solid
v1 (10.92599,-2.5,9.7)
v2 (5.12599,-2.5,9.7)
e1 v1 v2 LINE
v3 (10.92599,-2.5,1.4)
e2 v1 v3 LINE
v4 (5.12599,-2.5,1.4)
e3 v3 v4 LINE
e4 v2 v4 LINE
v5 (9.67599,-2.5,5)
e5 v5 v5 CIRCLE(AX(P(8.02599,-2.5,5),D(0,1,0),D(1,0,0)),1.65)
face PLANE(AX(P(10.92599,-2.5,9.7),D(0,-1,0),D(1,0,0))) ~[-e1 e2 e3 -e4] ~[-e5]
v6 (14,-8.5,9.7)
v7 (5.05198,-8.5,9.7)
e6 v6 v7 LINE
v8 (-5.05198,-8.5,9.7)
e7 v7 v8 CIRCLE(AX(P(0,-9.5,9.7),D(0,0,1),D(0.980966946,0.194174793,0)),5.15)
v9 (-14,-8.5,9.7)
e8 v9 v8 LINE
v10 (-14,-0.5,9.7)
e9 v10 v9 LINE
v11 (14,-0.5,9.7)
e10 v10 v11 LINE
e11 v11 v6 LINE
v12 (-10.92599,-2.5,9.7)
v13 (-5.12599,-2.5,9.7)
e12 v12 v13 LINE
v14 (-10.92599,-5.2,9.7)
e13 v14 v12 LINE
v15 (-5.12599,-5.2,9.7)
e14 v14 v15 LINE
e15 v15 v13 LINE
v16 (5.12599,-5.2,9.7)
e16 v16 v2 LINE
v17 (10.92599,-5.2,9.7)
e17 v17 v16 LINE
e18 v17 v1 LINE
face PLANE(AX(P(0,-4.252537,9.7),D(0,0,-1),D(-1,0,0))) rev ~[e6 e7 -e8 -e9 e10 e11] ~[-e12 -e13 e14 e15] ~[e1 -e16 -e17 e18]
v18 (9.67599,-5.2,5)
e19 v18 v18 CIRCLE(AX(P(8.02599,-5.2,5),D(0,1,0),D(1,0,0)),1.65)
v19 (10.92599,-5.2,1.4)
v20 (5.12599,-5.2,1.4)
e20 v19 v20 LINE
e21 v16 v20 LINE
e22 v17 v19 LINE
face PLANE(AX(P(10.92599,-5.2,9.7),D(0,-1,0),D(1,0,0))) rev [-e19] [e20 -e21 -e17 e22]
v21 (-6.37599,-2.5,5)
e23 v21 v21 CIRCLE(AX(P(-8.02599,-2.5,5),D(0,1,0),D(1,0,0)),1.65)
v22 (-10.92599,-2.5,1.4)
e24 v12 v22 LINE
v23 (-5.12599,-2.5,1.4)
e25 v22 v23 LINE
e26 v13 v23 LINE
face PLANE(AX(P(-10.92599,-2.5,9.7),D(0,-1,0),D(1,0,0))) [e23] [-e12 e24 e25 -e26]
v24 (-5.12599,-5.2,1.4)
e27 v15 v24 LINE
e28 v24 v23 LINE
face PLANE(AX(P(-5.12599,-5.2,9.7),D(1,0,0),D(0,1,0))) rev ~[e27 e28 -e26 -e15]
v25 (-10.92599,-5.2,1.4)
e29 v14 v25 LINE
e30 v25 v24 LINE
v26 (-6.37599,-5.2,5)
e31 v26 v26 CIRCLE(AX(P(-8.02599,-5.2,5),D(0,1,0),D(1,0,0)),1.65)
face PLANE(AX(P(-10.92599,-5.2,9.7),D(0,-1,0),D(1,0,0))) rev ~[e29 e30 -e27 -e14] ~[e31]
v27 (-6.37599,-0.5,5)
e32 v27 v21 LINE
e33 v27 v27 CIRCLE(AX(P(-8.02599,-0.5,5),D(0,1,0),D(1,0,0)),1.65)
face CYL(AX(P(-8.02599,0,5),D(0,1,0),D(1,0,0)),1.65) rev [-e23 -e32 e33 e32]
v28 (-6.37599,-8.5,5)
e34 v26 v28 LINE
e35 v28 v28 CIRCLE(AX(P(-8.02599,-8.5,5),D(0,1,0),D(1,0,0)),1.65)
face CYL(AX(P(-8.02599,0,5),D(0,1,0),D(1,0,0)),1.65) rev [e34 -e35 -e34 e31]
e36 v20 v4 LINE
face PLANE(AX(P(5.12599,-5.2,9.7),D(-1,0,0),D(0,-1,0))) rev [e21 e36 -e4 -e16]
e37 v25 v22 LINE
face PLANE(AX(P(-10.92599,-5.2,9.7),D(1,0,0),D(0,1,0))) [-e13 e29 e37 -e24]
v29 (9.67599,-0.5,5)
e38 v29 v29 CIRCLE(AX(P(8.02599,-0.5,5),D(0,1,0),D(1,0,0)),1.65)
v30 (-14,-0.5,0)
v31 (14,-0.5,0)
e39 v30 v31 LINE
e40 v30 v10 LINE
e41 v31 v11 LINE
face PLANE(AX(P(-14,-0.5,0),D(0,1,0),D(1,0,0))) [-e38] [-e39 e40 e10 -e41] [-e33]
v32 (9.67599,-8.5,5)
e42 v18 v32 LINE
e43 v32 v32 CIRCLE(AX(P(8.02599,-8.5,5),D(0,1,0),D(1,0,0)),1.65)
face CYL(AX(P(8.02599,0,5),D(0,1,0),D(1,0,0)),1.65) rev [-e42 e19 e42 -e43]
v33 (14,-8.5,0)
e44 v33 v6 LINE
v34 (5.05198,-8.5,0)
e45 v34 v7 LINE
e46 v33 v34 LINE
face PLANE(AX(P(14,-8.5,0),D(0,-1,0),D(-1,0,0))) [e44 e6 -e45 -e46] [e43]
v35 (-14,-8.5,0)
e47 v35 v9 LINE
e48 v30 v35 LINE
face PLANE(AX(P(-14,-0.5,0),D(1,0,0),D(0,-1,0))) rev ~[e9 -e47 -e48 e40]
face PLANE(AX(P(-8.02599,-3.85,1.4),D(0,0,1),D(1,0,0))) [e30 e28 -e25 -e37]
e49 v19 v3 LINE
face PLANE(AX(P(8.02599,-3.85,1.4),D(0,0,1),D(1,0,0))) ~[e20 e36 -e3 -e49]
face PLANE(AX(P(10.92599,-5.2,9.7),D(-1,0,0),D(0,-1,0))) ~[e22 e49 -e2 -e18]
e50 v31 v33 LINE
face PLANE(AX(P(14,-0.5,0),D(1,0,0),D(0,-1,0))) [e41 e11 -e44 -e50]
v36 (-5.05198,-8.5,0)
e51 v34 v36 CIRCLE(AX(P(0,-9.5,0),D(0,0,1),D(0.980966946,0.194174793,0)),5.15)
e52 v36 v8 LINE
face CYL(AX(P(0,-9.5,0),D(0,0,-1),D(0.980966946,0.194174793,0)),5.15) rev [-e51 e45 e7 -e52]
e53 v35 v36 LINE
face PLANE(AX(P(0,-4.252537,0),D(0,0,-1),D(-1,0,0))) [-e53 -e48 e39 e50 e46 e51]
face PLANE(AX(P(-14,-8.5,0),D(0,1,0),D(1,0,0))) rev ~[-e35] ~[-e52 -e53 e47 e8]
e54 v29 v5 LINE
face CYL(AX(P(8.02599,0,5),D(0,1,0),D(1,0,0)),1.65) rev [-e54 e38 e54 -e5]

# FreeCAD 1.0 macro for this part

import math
import FreeCAD as App
import Part
import Sketcher

V = App.Vector

doc = App.newDocument("Part")
params = doc.addObject("Spreadsheet::Sheet", "Params")
for row, (alias, value) in enumerate([
    ("sketch1_width", "28 mm"),
    ("sketch1_height", "8 mm"),
    ("sketch1_radius", "5.15 mm"),
    ("sketch1_height2", "1 mm"),
    ("pad1_length", "9.7 mm"),
    ("sketch2_diameter", "3.3 mm"),
    ("sketch3_width", "5.8 mm"),
    ("sketch3_height", "2.7 mm"),
    ("pocket2_length", "8.3 mm"),
], start=1):
    params.set(f"A{row}", alias)
    params.set(f"B{row}", "=" + value)
    params.setAlias(f"B{row}", alias)

body = doc.addObject("PartDesign::Body", "Body")

sketch1 = doc.addObject("Sketcher::SketchObject", "Sketch")
body.addObject(sketch1)
sketch1.AttachmentSupport = (doc.XY_Plane, [""])
sketch1.MapMode = "FlatFace"
sketch1.addGeometry([
    Part.ArcOfCircle(Part.Circle(V(0, -10, 0), V(0, 0, 1), 5), math.radians(11), math.radians(169)),
    Part.LineSegment(V(5, -8, 0), V(14, -8, 0)),
    Part.LineSegment(V(14, -8, 0), V(14, 0, 0)),
    Part.LineSegment(V(14, 0, 0), V(-14, 0, 0)),
    Part.LineSegment(V(-14, 0, 0), V(-14, -8, 0)),
    Part.LineSegment(V(-14, -8, 0), V(-5, -8, 0)),
], False)
sketch1.addConstraint([
    Sketcher.Constraint("Coincident", 0, 1, 1, 1),
    Sketcher.Constraint("Coincident", 1, 2, 2, 1),
    Sketcher.Constraint("Coincident", 2, 2, 3, 1),
    Sketcher.Constraint("Coincident", 3, 2, 4, 1),
    Sketcher.Constraint("Coincident", 4, 2, 5, 1),
    Sketcher.Constraint("Coincident", 5, 2, 0, 2),
    Sketcher.Constraint("Horizontal", 1),
    Sketcher.Constraint("Vertical", 2),
    Sketcher.Constraint("Horizontal", 3),
    Sketcher.Constraint("Vertical", 4),
    Sketcher.Constraint("Horizontal", 5),
    Sketcher.Constraint("Symmetric", 1, 2, 4, 2, -2),
    Sketcher.Constraint("PointOnObject", 0, 3, -2),
    Sketcher.Constraint("DistanceX", 3, 2, 3, 1, 28.0),
    Sketcher.Constraint("DistanceY", 2, 1, 2, 2, 8.0),
    Sketcher.Constraint("Radius", 0, 5.15),
    Sketcher.Constraint("DistanceY", 0, 3, 0, 1, 1.0),
    Sketcher.Constraint("DistanceY", 0, 3, -1, 1, 9.5),
])
sketch1.setExpression("Constraints[13]", "Params.sketch1_width")
sketch1.setExpression("Constraints[14]", "Params.sketch1_height")
sketch1.setExpression("Constraints[15]", "Params.sketch1_radius")
sketch1.setExpression("Constraints[16]", "Params.sketch1_height2")
pad1 = doc.addObject("PartDesign::Pad", "Pad")
body.addObject(pad1)
pad1.Profile = sketch1
pad1.setExpression("Length", "Params.pad1_length")

sketch2 = doc.addObject("Sketcher::SketchObject", "Sketch001")
body.addObject(sketch2)
sketch2.AttachmentSupport = (doc.XZ_Plane, [""])
sketch2.MapMode = "FlatFace"
sketch2.addGeometry([
    Part.Circle(V(-8, 5, 0), V(0, 0, 1), 1.6),
    Part.Circle(V(8, 5, 0), V(0, 0, 1), 1.6),
], False)
sketch2.addConstraint([
    Sketcher.Constraint("Equal", 0, 1),
    Sketcher.Constraint("Symmetric", 0, 3, 1, 3, -2),
    Sketcher.Constraint("Diameter", 0, 3.3),
    Sketcher.Constraint("DistanceY", -1, 1, 0, 3, 5.0),
    Sketcher.Constraint("DistanceX", 0, 3, -1, 1, 8.02599),
])
sketch2.setExpression("Constraints[2]", "Params.sketch2_diameter")
pocket1 = doc.addObject("PartDesign::Pocket", "Pocket")
body.addObject(pocket1)
pocket1.Profile = sketch2
pocket1.Type = "ThroughAll"
pocket1.Midplane = True

sketch3 = doc.addObject("Sketcher::SketchObject", "Sketch002")
body.addObject(sketch3)
sketch3.AttachmentSupport = (doc.XY_Plane, [""])
sketch3.MapMode = "FlatFace"
sketch3.AttachmentOffset = App.Placement(V(0, 0, 9.7), App.Rotation())
sketch3.addGeometry([
    Part.LineSegment(V(-10.9, -2.5, 0), V(-10.9, -5.2, 0)),
    Part.LineSegment(V(-10.9, -5.2, 0), V(-5.1, -5.2, 0)),
    Part.LineSegment(V(-5.1, -5.2, 0), V(-5.1, -2.5, 0)),
    Part.LineSegment(V(-5.1, -2.5, 0), V(-10.9, -2.5, 0)),
], False)
sketch3.addConstraint([
    Sketcher.Constraint("Coincident", 0, 2, 1, 1),
    Sketcher.Constraint("Coincident", 1, 2, 2, 1),
    Sketcher.Constraint("Coincident", 2, 2, 3, 1),
    Sketcher.Constraint("Coincident", 3, 2, 0, 1),
    Sketcher.Constraint("Vertical", 0),
    Sketcher.Constraint("Horizontal", 1),
    Sketcher.Constraint("Vertical", 2),
    Sketcher.Constraint("Horizontal", 3),
    Sketcher.Constraint("DistanceX", 1, 1, 1, 2, 5.8),
    Sketcher.Constraint("DistanceY", 0, 2, 0, 1, 2.7),
    Sketcher.Constraint("DistanceY", 0, 2, -1, 1, 5.2),
    Sketcher.Constraint("DistanceX", 0, 2, -1, 1, 10.92599),
])
sketch3.setExpression("Constraints[8]", "Params.sketch3_width")
sketch3.setExpression("Constraints[9]", "Params.sketch3_height")
pocket2 = doc.addObject("PartDesign::Pocket", "Pocket001")
body.addObject(pocket2)
pocket2.Profile = sketch3
pocket2.setExpression("Length", "Params.pocket2_length")
doc.recompute()

mirrored = doc.addObject("PartDesign::Mirrored", "Mirrored")
body.addObject(mirrored)
mirrored.Originals = [pocket2]
mirrored.MirrorPlane = (doc.YZ_Plane, [""])
body.Tip = mirrored

doc.recompute()
